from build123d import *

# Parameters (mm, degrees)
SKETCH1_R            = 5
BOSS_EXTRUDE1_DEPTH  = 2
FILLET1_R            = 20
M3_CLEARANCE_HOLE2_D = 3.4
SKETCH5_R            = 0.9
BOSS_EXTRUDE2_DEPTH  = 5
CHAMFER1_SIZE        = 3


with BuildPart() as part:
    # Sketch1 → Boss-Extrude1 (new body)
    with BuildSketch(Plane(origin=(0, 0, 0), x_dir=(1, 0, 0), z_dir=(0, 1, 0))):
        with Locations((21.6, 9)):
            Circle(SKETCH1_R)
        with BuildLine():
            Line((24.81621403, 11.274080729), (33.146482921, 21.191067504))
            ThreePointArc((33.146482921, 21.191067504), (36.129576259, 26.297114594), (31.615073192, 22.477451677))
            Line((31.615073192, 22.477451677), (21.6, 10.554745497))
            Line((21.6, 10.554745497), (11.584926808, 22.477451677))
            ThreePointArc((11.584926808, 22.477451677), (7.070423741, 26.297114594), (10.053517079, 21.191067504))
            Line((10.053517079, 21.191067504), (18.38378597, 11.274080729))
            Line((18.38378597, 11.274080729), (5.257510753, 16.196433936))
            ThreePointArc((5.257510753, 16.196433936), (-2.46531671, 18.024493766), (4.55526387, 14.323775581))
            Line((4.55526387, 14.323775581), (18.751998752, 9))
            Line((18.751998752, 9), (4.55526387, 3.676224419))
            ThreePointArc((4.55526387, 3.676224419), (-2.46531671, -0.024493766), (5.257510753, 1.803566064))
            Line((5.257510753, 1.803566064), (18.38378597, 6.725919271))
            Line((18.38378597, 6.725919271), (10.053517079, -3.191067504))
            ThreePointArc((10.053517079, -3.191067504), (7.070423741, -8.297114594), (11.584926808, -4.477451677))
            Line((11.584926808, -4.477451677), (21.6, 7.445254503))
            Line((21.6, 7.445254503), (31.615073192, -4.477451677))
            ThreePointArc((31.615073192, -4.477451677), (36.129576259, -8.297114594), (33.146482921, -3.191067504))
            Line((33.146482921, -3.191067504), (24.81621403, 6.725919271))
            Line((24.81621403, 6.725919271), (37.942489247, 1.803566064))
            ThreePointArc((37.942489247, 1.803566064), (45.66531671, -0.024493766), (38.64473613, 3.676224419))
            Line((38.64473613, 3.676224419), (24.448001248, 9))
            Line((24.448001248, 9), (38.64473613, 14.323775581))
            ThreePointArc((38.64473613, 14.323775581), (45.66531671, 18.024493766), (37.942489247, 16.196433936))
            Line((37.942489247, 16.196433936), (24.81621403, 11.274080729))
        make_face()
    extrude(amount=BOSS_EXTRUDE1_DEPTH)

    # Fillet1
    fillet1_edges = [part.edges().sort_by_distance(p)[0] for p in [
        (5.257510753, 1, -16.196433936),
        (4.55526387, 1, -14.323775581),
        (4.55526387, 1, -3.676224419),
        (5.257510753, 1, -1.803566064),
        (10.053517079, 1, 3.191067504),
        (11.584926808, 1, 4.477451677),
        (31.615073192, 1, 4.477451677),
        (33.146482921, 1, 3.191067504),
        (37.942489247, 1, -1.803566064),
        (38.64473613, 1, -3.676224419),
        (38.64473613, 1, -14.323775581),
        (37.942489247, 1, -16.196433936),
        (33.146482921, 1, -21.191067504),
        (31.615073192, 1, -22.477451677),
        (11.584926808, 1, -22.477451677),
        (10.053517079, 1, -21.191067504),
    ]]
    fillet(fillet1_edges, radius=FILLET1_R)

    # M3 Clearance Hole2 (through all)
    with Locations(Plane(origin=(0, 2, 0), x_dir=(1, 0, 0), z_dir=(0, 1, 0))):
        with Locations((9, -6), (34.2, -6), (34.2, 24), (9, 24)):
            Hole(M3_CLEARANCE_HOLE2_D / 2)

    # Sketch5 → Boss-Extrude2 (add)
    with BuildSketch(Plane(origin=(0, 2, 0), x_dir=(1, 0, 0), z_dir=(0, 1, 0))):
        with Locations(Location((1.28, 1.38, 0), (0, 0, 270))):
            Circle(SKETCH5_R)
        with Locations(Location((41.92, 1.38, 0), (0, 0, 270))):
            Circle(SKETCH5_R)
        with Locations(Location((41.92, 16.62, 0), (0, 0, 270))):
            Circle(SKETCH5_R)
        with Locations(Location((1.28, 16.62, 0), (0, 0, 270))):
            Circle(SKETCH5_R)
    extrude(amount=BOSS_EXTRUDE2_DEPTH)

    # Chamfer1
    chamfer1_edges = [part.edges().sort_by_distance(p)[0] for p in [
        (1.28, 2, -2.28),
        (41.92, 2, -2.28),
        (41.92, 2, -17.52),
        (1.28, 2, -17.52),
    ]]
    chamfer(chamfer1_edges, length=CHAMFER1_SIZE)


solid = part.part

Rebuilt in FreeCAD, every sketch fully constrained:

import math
import FreeCAD as App
import Part
import Sketcher
from FreeCAD import Vector
Q = App.Units.Quantity


def edges_at(feature, points):
    """Names of the edges that pass closest to the given points."""
    edges = feature.Shape.Edges
    near = lambda p: min(range(len(edges)), key=lambda i: edges[i].distToShape(Part.Vertex(*p))[0])
    return sorted({f"Edge{near(p) + 1}" for p in points})

doc = App.newDocument("Part")
body = doc.addObject("PartDesign::Body", "Body")

# Sketch on XZ plane
sketch1 = body.newObject("Sketcher::SketchObject", "Sketch")
sketch1.AttachmentSupport = (doc.getObject("XZ_Plane"), [""])
sketch1.MapMode = "FlatFace"
sketch1.addGeometry(Part.ArcOfCircle(Part.Circle(Vector(21.6, -9, 0), Vector(0, 0, 1), 5), math.radians(-9.02), math.radians(9.02)), False)
sketch1.addGeometry(Part.LineSegment(Vector(26.5, -9.8, 0), Vector(38.6, -14.3, 0)), False)
sketch1.addGeometry(Part.ArcOfCircle(Part.Circle(Vector(41.9, -16.6, 0), Vector(0, 0, 1), 4), math.radians(174), math.radians(505)), False)
sketch1.addGeometry(Part.LineSegment(Vector(37.9, -16.2, 0), Vector(25.8, -11.7, 0)), False)
sketch1.addGeometry(Part.ArcOfCircle(Part.Circle(Vector(21.6, -9, 0), Vector(0, 0, 1), 5), math.radians(-38.43), math.radians(-32.09)), False)
sketch1.addGeometry(Part.LineSegment(Vector(25.5, -12.1, 0), Vector(33.1, -21.2, 0)), False)
sketch1.addGeometry(Part.ArcOfCircle(Part.Circle(Vector(34.2, -24, 0), Vector(0, 0, 1), 3), math.radians(150), math.radians(471)), False)
sketch1.addGeometry(Part.LineSegment(Vector(31.6, -22.5, 0), Vector(24, -13.4, 0)), False)
sketch1.addGeometry(Part.ArcOfCircle(Part.Circle(Vector(21.6, -9, 0), Vector(0, 0, 1), 5), math.radians(-118), math.radians(-62)), False)
sketch1.addGeometry(Part.LineSegment(Vector(19.2, -13.4, 0), Vector(11.6, -22.5, 0)), False)
sketch1.addGeometry(Part.ArcOfCircle(Part.Circle(Vector(9, -24, 0), Vector(0, 0, 1), 3), math.radians(69), math.radians(390)), False)
sketch1.addGeometry(Part.LineSegment(Vector(10.1, -21.2, 0), Vector(17.7, -12.1, 0)), False)
sketch1.addGeometry(Part.ArcOfCircle(Part.Circle(Vector(21.6, -9, 0), Vector(0, 0, 1), 5), math.radians(-147.91), math.radians(-141.57)), False)
sketch1.addGeometry(Part.LineSegment(Vector(17.4, -11.7, 0), Vector(5.3, -16.2, 0)), False)
sketch1.addGeometry(Part.ArcOfCircle(Part.Circle(Vector(1.3, -16.6, 0), Vector(0, 0, 1), 4), math.radians(35), math.radians(366)), False)
sketch1.addGeometry(Part.LineSegment(Vector(4.6, -14.3, 0), Vector(16.7, -9.8, 0)), False)
sketch1.addGeometry(Part.ArcOfCircle(Part.Circle(Vector(21.6, -9, 0), Vector(0, 0, 1), 5), math.radians(170.98), math.radians(189.02)), False)
sketch1.addGeometry(Part.LineSegment(Vector(16.7, -8.2, 0), Vector(4.6, -3.7, 0)), False)
sketch1.addGeometry(Part.ArcOfCircle(Part.Circle(Vector(1.3, -1.4, 0), Vector(0, 0, 1), 4), math.radians(-6), math.radians(325)), False)
sketch1.addGeometry(Part.LineSegment(Vector(5.3, -1.8, 0), Vector(17.4, -6.3, 0)), False)
sketch1.addGeometry(Part.ArcOfCircle(Part.Circle(Vector(21.6, -9, 0), Vector(0, 0, 1), 5), math.radians(141.57), math.radians(147.91)), False)
sketch1.addGeometry(Part.LineSegment(Vector(17.7, -5.9, 0), Vector(10.1, 3.2, 0)), False)
sketch1.addGeometry(Part.ArcOfCircle(Part.Circle(Vector(9, 6, 0), Vector(0, 0, 1), 3), math.radians(-30), math.radians(291)), False)
sketch1.addGeometry(Part.LineSegment(Vector(11.6, 4.5, 0), Vector(19.2, -4.6, 0)), False)
sketch1.addGeometry(Part.ArcOfCircle(Part.Circle(Vector(21.6, -9, 0), Vector(0, 0, 1), 5), math.radians(62), math.radians(118)), False)
sketch1.addGeometry(Part.LineSegment(Vector(24, -4.6, 0), Vector(31.6, 4.5, 0)), False)
sketch1.addGeometry(Part.ArcOfCircle(Part.Circle(Vector(34.2, 6, 0), Vector(0, 0, 1), 3), math.radians(-111), math.radians(210)), False)
sketch1.addGeometry(Part.LineSegment(Vector(33.1, 3.2, 0), Vector(25.5, -5.9, 0)), False)
sketch1.addGeometry(Part.ArcOfCircle(Part.Circle(Vector(21.6, -9, 0), Vector(0, 0, 1), 5), math.radians(32.09), math.radians(38.43)), False)
sketch1.addGeometry(Part.LineSegment(Vector(25.8, -6.3, 0), Vector(37.9, -1.8, 0)), False)
sketch1.addGeometry(Part.ArcOfCircle(Part.Circle(Vector(41.9, -1.4, 0), Vector(0, 0, 1), 4), math.radians(-145), math.radians(186)), False)
sketch1.addGeometry(Part.LineSegment(Vector(38.6, -3.7, 0), Vector(26.5, -8.2, 0)), False)
sketch1.addConstraint(Sketcher.Constraint("Coincident", 0, 1, 1, 1))
sketch1.addConstraint(Sketcher.Constraint("Coincident", 1, 2, 2, 2))
sketch1.addConstraint(Sketcher.Constraint("Coincident", 2, 1, 3, 1))
sketch1.addConstraint(Sketcher.Constraint("Coincident", 3, 2, 4, 2))
sketch1.addConstraint(Sketcher.Constraint("Coincident", 4, 1, 5, 1))
sketch1.addConstraint(Sketcher.Constraint("Coincident", 5, 2, 6, 2))
sketch1.addConstraint(Sketcher.Constraint("Coincident", 6, 1, 7, 1))
sketch1.addConstraint(Sketcher.Constraint("Coincident", 7, 2, 8, 2))
sketch1.addConstraint(Sketcher.Constraint("Coincident", 8, 1, 9, 1))
sketch1.addConstraint(Sketcher.Constraint("Coincident", 9, 2, 10, 2))
sketch1.addConstraint(Sketcher.Constraint("Coincident", 10, 1, 11, 1))
sketch1.addConstraint(Sketcher.Constraint("Coincident", 11, 2, 12, 2))
sketch1.addConstraint(Sketcher.Constraint("Coincident", 12, 1, 13, 1))
sketch1.addConstraint(Sketcher.Constraint("Coincident", 13, 2, 14, 2))
sketch1.addConstraint(Sketcher.Constraint("Coincident", 14, 1, 15, 1))
sketch1.addConstraint(Sketcher.Constraint("Coincident", 15, 2, 16, 2))
sketch1.addConstraint(Sketcher.Constraint("Coincident", 16, 1, 17, 1))
sketch1.addConstraint(Sketcher.Constraint("Coincident", 17, 2, 18, 2))
sketch1.addConstraint(Sketcher.Constraint("Coincident", 18, 1, 19, 1))
sketch1.addConstraint(Sketcher.Constraint("Coincident", 19, 2, 20, 2))
sketch1.addConstraint(Sketcher.Constraint("Coincident", 20, 1, 21, 1))
sketch1.addConstraint(Sketcher.Constraint("Coincident", 21, 2, 22, 2))
sketch1.addConstraint(Sketcher.Constraint("Coincident", 22, 1, 23, 1))
sketch1.addConstraint(Sketcher.Constraint("Coincident", 23, 2, 24, 2))
sketch1.addConstraint(Sketcher.Constraint("Coincident", 24, 1, 25, 1))
sketch1.addConstraint(Sketcher.Constraint("Coincident", 25, 2, 26, 2))
sketch1.addConstraint(Sketcher.Constraint("Coincident", 26, 1, 27, 1))
sketch1.addConstraint(Sketcher.Constraint("Coincident", 27, 2, 28, 2))
sketch1.addConstraint(Sketcher.Constraint("Coincident", 28, 1, 29, 1))
sketch1.addConstraint(Sketcher.Constraint("Coincident", 29, 2, 30, 2))
sketch1.addConstraint(Sketcher.Constraint("Coincident", 30, 1, 31, 1))
sketch1.addConstraint(Sketcher.Constraint("Coincident", 31, 2, 0, 2))
sketch1.addConstraint(Sketcher.Constraint("Coincident", 4, 3, 0, 3))
sketch1.addConstraint(Sketcher.Constraint("Coincident", 8, 3, 0, 3))
sketch1.addConstraint(Sketcher.Constraint("Coincident", 12, 3, 0, 3))
sketch1.addConstraint(Sketcher.Constraint("Coincident", 16, 3, 0, 3))
sketch1.addConstraint(Sketcher.Constraint("Coincident", 20, 3, 0, 3))
sketch1.addConstraint(Sketcher.Constraint("Coincident", 24, 3, 0, 3))
sketch1.addConstraint(Sketcher.Constraint("Coincident", 28, 3, 0, 3))
sketch1.addConstraint(Sketcher.Constraint("Equal", 0, 4))
sketch1.addConstraint(Sketcher.Constraint("Equal", 4, 8))
sketch1.addConstraint(Sketcher.Constraint("Equal", 6, 10))
sketch1.addConstraint(Sketcher.Constraint("Equal", 8, 12))
sketch1.addConstraint(Sketcher.Constraint("Equal", 2, 14))
sketch1.addConstraint(Sketcher.Constraint("Equal", 12, 16))
sketch1.addConstraint(Sketcher.Constraint("Equal", 14, 18))
sketch1.addConstraint(Sketcher.Constraint("Equal", 16, 20))
sketch1.addConstraint(Sketcher.Constraint("Equal", 10, 22))
sketch1.addConstraint(Sketcher.Constraint("Equal", 20, 24))
sketch1.addConstraint(Sketcher.Constraint("Equal", 22, 26))
sketch1.addConstraint(Sketcher.Constraint("Equal", 24, 28))
sketch1.addConstraint(Sketcher.Constraint("Equal", 18, 30))
sketch1.addConstraint(Sketcher.Constraint("Parallel", 1, 3))
sketch1.addConstraint(Sketcher.Constraint("Parallel", 5, 7))
sketch1.addConstraint(Sketcher.Constraint("Parallel", 9, 11))
sketch1.addConstraint(Sketcher.Constraint("Parallel", 13, 15))
sketch1.addConstraint(Sketcher.Constraint("Parallel", 3, 17))
sketch1.addConstraint(Sketcher.Constraint("Parallel", 17, 19))
sketch1.addConstraint(Sketcher.Constraint("Parallel", 7, 21))
sketch1.addConstraint(Sketcher.Constraint("Parallel", 21, 23))
sketch1.addConstraint(Sketcher.Constraint("Parallel", 11, 25))
sketch1.addConstraint(Sketcher.Constraint("Parallel", 25, 27))
sketch1.addConstraint(Sketcher.Constraint("Parallel", 15, 29))
sketch1.addConstraint(Sketcher.Constraint("Parallel", 29, 31))
sketch1.addConstraint(Sketcher.Constraint("Horizontal", 6, 3, 10, 3))
sketch1.addConstraint(Sketcher.Constraint("Horizontal", 2, 3, 14, 3))
sketch1.addConstraint(Sketcher.Constraint("Horizontal", 22, 3, 26, 3))
sketch1.addConstraint(Sketcher.Constraint("Horizontal", 18, 3, 30, 3))
sketch1.addConstraint(Sketcher.Constraint("Horizontal", 7, 2, 8, 1))
sketch1.addConstraint(Sketcher.Constraint("Horizontal", 6, 1, 9, 2))
sketch1.addConstraint(Sketcher.Constraint("Horizontal", 5, 2, 10, 1))
sketch1.addConstraint(Sketcher.Constraint("Horizontal", 3, 2, 12, 1))
sketch1.addConstraint(Sketcher.Constraint("Horizontal", 2, 1, 13, 2))
sketch1.addConstraint(Sketcher.Constraint("Horizontal", 1, 2, 14, 1))
sketch1.addConstraint(Sketcher.Constraint("Horizontal", 23, 2, 24, 1))
sketch1.addConstraint(Sketcher.Constraint("Horizontal", 22, 1, 25, 2))
sketch1.addConstraint(Sketcher.Constraint("Horizontal", 21, 2, 26, 1))
sketch1.addConstraint(Sketcher.Constraint("Horizontal", 19, 2, 28, 1))
sketch1.addConstraint(Sketcher.Constraint("Horizontal", 18, 1, 29, 2))
sketch1.addConstraint(Sketcher.Constraint("Horizontal", 17, 2, 30, 1))
sketch1.addConstraint(Sketcher.Constraint("Vertical", 14, 3, 18, 3))
sketch1.addConstraint(Sketcher.Constraint("Vertical", 10, 3, 22, 3))
sketch1.addConstraint(Sketcher.Constraint("Vertical", 6, 3, 26, 3))
sketch1.addConstraint(Sketcher.Constraint("Vertical", 2, 3, 30, 3))
sketch1.addConstraint(Sketcher.Constraint("Vertical", 15, 2, 16, 1))
sketch1.addConstraint(Sketcher.Constraint("Vertical", 14, 1, 17, 2))
sketch1.addConstraint(Sketcher.Constraint("Vertical", 13, 2, 18, 1))
sketch1.addConstraint(Sketcher.Constraint("Vertical", 11, 2, 20, 1))
sketch1.addConstraint(Sketcher.Constraint("Vertical", 10, 1, 21, 2))
sketch1.addConstraint(Sketcher.Constraint("Vertical", 9, 2, 22, 1))
sketch1.addConstraint(Sketcher.Constraint("Equal", 1, 3))
sketch1.addConstraint(Sketcher.Constraint("Equal", 5, 7))
sketch1.addConstraint(Sketcher.Constraint("Radius", 0, Q("5 mm")))
sketch1.addConstraint(Sketcher.Constraint("Radius", 2, Q("4 mm")))
sketch1.addConstraint(Sketcher.Constraint("Radius", 6, Q("3 mm")))
sketch1.addConstraint(Sketcher.Constraint("DistanceY", 0, 3, -1, 1, Q("9 mm")))
sketch1.addConstraint(Sketcher.Constraint("DistanceY", 6, 3, -1, 1, Q("24 mm")))
sketch1.addConstraint(Sketcher.Constraint("DistanceX", -1, 1, 10, 3, Q("9 mm")))
sketch1.addConstraint(Sketcher.Constraint("DistanceX", -1, 1, 0, 3, Q("21.6 mm")))
sketch1.addConstraint(Sketcher.Constraint("DistanceX", -1, 1, 2, 3, Q("41.92 mm")))
sketch1.addConstraint(Sketcher.Constraint("DistanceY", 2, 3, -1, 1, Q("16.62 mm")))
sketch1.addConstraint(Sketcher.Constraint("DistanceX", 7, 2, 0, 1, Q("2.552901 mm")))
sketch1.addConstraint(Sketcher.Constraint("DistanceX", -1, 1, 0, 1, Q("26.538181 mm")))
sketch1.addConstraint(Sketcher.Constraint("DistanceX", -1, 1, 2, 1, Q("37.942489 mm")))
sketch1.addConstraint(Sketcher.Constraint("DistanceX", -1, 1, 4, 1, Q("25.51669 mm")))
pad1 = body.newObject("PartDesign::Pad", "Pad")
pad1.Profile = sketch1
pad1.Length = 2
pad1.Reversed = True
doc.recompute()

fillet = body.newObject("PartDesign::Fillet", "Fillet")
fillet.Base = (pad1, edges_at(pad1, [
    (5.258, 1, -16.196),
    (4.555, 1, -14.324),
    (4.555, 1, -3.676),
    (5.258, 1, -1.804),
    (10.054, 1, 3.191),
    (11.585, 1, 4.477),
    (31.615, 1, 4.477),
    (33.146, 1, 3.191),
    (37.942, 1, -1.804),
    (38.645, 1, -3.676),
    (38.645, 1, -14.324),
    (37.942, 1, -16.196),
    (33.146, 1, -21.191),
    (31.615, 1, -22.477),
    (11.585, 1, -22.477),
    (10.054, 1, -21.191),
]))
fillet.Radius = 20

# Sketch on XZ plane
sketch2 = body.newObject("Sketcher::SketchObject", "Sketch001")
sketch2.AttachmentSupport = (doc.getObject("XZ_Plane"), [""])
sketch2.MapMode = "FlatFace"
sketch2.AttachmentOffset = App.Placement(Vector(0, 0, -2), App.Rotation())
sketch2.addGeometry(Part.Circle(Vector(9, 6, 0), Vector(0, 0, 1), 1.7), False)
sketch2.addGeometry(Part.Circle(Vector(34.2, 6, 0), Vector(0, 0, 1), 1.7), False)
sketch2.addGeometry(Part.Circle(Vector(34.2, -24, 0), Vector(0, 0, 1), 1.7), False)
sketch2.addGeometry(Part.Circle(Vector(9, -24, 0), Vector(0, 0, 1), 1.7), False)
sketch2.addConstraint(Sketcher.Constraint("Equal", 0, 1))
sketch2.addConstraint(Sketcher.Constraint("Equal", 1, 2))
sketch2.addConstraint(Sketcher.Constraint("Equal", 2, 3))
sketch2.addConstraint(Sketcher.Constraint("Horizontal", 0, 3, 1, 3))
sketch2.addConstraint(Sketcher.Constraint("Horizontal", 2, 3, 3, 3))
sketch2.addConstraint(Sketcher.Constraint("Vertical", 1, 3, 2, 3))
sketch2.addConstraint(Sketcher.Constraint("Vertical", 0, 3, 3, 3))
sketch2.addConstraint(Sketcher.Constraint("Diameter", 0, Q("3.4 mm")))
sketch2.addConstraint(Sketcher.Constraint("DistanceX", -1, 1, 0, 3, Q("9 mm")))
sketch2.addConstraint(Sketcher.Constraint("DistanceY", -1, 1, 0, 3, Q("6 mm")))
sketch2.addConstraint(Sketcher.Constraint("DistanceY", 2, 3, -1, 1, Q("24 mm")))
sketch2.addConstraint(Sketcher.Constraint("DistanceX", -1, 1, 1, 3, Q("34.2 mm")))
doc.recompute()
hole = body.newObject("PartDesign::Hole", "Hole")
hole.Profile = sketch2
hole.ThreadType = "None"
hole.Diameter = 3.4
hole.DepthType = "ThroughAll"
hole.Reversed = True

# Sketch on XZ plane
sketch3 = body.newObject("Sketcher::SketchObject", "Sketch002")
sketch3.AttachmentSupport = (doc.getObject("XZ_Plane"), [""])
sketch3.MapMode = "FlatFace"
sketch3.AttachmentOffset = App.Placement(Vector(0, 0, -2), App.Rotation())
sketch3.addGeometry(Part.Circle(Vector(1.3, -1.4, 0), Vector(0, 0, 1), 0.9), False)
sketch3.addGeometry(Part.Circle(Vector(41.9, -1.4, 0), Vector(0, 0, 1), 0.9), False)
sketch3.addGeometry(Part.Circle(Vector(41.9, -16.6, 0), Vector(0, 0, 1), 0.9), False)
sketch3.addGeometry(Part.Circle(Vector(1.3, -16.6, 0), Vector(0, 0, 1), 0.9), False)
sketch3.addConstraint(Sketcher.Constraint("Equal", 0, 1))
sketch3.addConstraint(Sketcher.Constraint("Equal", 1, 2))
sketch3.addConstraint(Sketcher.Constraint("Equal", 2, 3))
sketch3.addConstraint(Sketcher.Constraint("Horizontal", 0, 3, 1, 3))
sketch3.addConstraint(Sketcher.Constraint("Horizontal", 2, 3, 3, 3))
sketch3.addConstraint(Sketcher.Constraint("Vertical", 1, 3, 2, 3))
sketch3.addConstraint(Sketcher.Constraint("Vertical", 0, 3, 3, 3))
sketch3.addConstraint(Sketcher.Constraint("Diameter", 0, Q("1.8 mm")))
sketch3.addConstraint(Sketcher.Constraint("DistanceX", -1, 1, 0, 3, Q("1.28 mm")))
sketch3.addConstraint(Sketcher.Constraint("DistanceY", 0, 3, -1, 1, Q("1.38 mm")))
sketch3.addConstraint(Sketcher.Constraint("DistanceX", -1, 1, 1, 3, Q("41.92 mm")))
sketch3.addConstraint(Sketcher.Constraint("DistanceY", 2, 3, -1, 1, Q("16.62 mm")))
pad2 = body.newObject("PartDesign::Pad", "Pad001")
pad2.Profile = sketch3
pad2.Length = 5
pad2.Reversed = True
doc.recompute()

chamfer = body.newObject("PartDesign::Chamfer", "Chamfer")
chamfer.Base = (pad2, edges_at(pad2, [
    (1.28, 2, -2.28),
    (41.92, 2, -2.28),
    (41.92, 2, -17.52),
    (1.28, 2, -17.52),
]))
chamfer.Size = 3

doc.recompute()
